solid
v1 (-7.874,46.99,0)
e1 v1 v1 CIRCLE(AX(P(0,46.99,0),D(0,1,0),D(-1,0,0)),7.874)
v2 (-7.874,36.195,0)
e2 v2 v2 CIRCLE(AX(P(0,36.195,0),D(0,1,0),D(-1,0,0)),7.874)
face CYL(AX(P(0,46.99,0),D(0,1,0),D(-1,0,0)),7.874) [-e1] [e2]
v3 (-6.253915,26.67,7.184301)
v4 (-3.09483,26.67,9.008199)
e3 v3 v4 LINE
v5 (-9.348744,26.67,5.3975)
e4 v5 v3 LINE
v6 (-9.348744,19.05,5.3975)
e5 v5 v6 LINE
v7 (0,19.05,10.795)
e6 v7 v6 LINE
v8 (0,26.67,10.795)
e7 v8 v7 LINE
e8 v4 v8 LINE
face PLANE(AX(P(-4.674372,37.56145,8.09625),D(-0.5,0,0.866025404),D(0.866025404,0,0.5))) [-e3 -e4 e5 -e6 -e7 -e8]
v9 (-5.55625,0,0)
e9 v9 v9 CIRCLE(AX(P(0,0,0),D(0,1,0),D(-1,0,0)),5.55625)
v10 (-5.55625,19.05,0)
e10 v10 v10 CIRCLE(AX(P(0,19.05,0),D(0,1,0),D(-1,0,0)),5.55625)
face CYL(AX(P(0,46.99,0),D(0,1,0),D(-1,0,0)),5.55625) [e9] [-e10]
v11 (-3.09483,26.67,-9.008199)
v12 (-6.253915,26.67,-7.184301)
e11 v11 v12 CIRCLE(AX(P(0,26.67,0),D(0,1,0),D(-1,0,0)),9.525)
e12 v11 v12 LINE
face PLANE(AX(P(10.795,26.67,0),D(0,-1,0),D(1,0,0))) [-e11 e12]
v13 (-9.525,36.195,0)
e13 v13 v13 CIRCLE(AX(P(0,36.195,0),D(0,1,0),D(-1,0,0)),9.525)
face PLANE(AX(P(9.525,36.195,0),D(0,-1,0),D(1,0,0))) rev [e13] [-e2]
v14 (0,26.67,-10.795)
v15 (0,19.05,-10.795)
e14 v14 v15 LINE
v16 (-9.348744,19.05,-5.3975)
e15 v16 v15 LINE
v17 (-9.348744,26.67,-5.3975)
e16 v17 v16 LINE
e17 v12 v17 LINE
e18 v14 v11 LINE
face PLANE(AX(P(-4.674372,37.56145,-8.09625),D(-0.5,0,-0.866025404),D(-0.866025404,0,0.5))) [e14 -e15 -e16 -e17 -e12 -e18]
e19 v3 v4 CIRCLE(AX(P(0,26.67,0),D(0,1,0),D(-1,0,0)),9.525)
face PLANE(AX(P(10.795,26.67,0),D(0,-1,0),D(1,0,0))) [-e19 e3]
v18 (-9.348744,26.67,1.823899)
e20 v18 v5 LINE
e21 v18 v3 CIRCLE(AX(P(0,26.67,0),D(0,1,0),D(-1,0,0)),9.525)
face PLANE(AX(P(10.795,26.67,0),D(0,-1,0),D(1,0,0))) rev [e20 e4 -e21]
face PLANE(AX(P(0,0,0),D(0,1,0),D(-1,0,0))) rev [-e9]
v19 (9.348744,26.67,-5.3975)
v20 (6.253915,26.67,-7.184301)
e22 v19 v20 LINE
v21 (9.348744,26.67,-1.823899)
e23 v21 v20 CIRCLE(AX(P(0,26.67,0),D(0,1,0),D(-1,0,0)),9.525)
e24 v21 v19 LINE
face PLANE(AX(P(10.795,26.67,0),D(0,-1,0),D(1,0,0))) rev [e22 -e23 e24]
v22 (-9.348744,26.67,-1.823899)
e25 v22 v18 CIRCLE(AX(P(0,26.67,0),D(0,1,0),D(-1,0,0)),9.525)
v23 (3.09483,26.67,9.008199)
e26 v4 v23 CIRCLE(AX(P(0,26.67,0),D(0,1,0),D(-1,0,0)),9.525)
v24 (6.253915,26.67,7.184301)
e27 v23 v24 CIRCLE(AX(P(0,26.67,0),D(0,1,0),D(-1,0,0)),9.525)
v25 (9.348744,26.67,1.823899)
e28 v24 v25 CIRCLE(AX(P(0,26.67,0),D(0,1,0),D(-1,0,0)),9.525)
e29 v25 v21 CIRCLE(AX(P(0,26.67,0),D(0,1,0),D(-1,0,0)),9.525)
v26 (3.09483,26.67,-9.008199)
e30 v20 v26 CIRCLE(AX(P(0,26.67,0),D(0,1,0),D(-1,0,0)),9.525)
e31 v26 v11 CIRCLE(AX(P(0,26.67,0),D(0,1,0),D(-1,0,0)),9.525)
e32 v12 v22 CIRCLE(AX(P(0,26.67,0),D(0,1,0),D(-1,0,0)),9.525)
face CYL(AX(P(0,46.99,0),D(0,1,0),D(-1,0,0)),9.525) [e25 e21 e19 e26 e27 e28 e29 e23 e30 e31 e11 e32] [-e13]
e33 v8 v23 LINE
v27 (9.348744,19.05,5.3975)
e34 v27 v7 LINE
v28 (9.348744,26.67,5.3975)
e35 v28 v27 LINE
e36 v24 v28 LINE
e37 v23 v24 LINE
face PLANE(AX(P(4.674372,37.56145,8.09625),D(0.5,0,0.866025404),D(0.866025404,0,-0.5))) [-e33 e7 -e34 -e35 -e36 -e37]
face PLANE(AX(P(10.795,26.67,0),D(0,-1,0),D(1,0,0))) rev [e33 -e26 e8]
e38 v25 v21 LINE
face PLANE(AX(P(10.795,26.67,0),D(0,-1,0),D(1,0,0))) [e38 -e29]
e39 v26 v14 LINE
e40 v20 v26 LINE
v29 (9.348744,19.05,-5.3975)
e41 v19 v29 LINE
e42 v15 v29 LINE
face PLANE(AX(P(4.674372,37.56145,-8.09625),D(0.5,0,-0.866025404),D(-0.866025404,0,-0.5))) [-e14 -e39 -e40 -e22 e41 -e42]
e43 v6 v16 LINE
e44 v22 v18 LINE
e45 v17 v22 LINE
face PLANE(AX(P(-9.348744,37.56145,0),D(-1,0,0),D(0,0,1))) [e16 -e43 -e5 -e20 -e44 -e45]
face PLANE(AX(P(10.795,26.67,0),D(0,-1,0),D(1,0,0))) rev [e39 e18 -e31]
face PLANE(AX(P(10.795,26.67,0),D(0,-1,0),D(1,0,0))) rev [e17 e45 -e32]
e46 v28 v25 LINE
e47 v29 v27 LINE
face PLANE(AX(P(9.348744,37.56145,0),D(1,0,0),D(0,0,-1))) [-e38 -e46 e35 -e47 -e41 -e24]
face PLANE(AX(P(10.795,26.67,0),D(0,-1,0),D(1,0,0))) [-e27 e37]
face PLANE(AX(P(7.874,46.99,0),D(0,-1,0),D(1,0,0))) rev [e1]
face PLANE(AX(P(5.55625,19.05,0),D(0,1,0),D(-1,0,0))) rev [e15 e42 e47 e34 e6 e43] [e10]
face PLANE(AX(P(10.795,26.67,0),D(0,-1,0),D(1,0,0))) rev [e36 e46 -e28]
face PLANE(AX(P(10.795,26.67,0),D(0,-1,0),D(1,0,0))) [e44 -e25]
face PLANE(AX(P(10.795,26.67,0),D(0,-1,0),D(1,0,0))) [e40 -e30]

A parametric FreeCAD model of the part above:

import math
import FreeCAD as App
import Part
import Sketcher
Q = App.Units.Quantity


def add_polygon(sketch, points):
    """Adds a closed chain of lines whose ends are joined by coincident constraints."""
    first, n = sketch.GeometryCount, len(points)
    for a, b in zip(points, points[1:] + points[:1]):
        sketch.addGeometry(Part.LineSegment(App.Vector(*a, 0), App.Vector(*b, 0)), False)
    for i in range(n):
        sketch.addConstraint(Sketcher.Constraint("Coincident", first + i, 2, first + (i + 1) % n, 1))

doc = App.newDocument("Part")
body = doc.addObject("PartDesign::Body", "Body")

# Sketch on XY plane
sketch1 = body.newObject("Sketcher::SketchObject", "Sketch")
sketch1.AttachmentSupport = (doc.getObject("XY_Plane"), [""])
sketch1.MapMode = "FlatFace"
add_polygon(sketch1, [(0, 0), (5.6, 0), (5.6, 19.1), (10.8, 19.1), (10.8, 26.7), (9.5, 26.7), (9.5, 36.2), (7.9, 36.2), (7.9, 47), (0, 47)])  # lines 0-9
sketch1.addConstraint([
    Sketcher.Constraint("Horizontal", 0),
    Sketcher.Constraint("Vertical", 1),
    Sketcher.Constraint("Horizontal", 2),
    Sketcher.Constraint("Vertical", 3),
    Sketcher.Constraint("Horizontal", 4),
    Sketcher.Constraint("Vertical", 5),
    Sketcher.Constraint("Horizontal", 6),
    Sketcher.Constraint("Vertical", 7),
    Sketcher.Constraint("Horizontal", 8),
    Sketcher.Constraint("Vertical", 9),
    Sketcher.Constraint("Coincident", 9, 2, -1, 1),
    Sketcher.Constraint("DistanceY", 3, 1, 3, 2, Q("0.3 in")),
    Sketcher.Constraint("DistanceX", 4, 2, 4, 1, Q("0.05 in")),
    Sketcher.Constraint("DistanceX", 8, 2, 8, 1, Q("0.31 in")),
    Sketcher.Constraint("DistanceY", 1, 1, 1, 2, Q("0.75 in")),
    Sketcher.Constraint("DistanceY", 9, 2, 9, 1, Q("1.85 in")),
    Sketcher.Constraint("DistanceX", 0, 1, 0, 2, Q("0.21875 in")),
    Sketcher.Constraint("DistanceX", 6, 2, 6, 1, Q("0.065 in")),
    Sketcher.Constraint("DistanceY", 5, 1, 5, 2, Q("0.375 in")),
])
revolution = body.newObject("PartDesign::Revolution", "Revolution")
revolution.Profile = sketch1
revolution.ReferenceAxis = (sketch1, ["V_Axis"])
revolution.Angle = 360

# Sketch on XZ plane
sketch2 = body.newObject("Sketcher::SketchObject", "Sketch001")
sketch2.AttachmentSupport = (doc.getObject("XZ_Plane"), [""])
sketch2.MapMode = "FlatFace"
sketch2.AttachmentOffset = App.Placement(App.Vector(0, 0, -0.75 * 25.4), App.Rotation())
sketch2.addGeometry([
    Part.LineSegment(App.Vector(-9, 5, 0), App.Vector(0, 11, 0)),  # 0
    Part.ArcOfCircle(Part.Circle(App.Vector(0, 0, 0), App.Vector(0, 0, 1), 11), math.radians(90), math.radians(150)),  # 1
    Part.ArcOfCircle(Part.Circle(App.Vector(0, 0, 0), App.Vector(0, 0, 1), 11), math.radians(30), math.radians(90)),  # 2
    Part.LineSegment(App.Vector(0, 11, 0), App.Vector(9, 5, 0)),  # 3
    Part.ArcOfCircle(Part.Circle(App.Vector(0, 0, 0), App.Vector(0, 0, 1), 11), math.radians(0), math.radians(30)),  # 4
    Part.LineSegment(App.Vector(9, 5, 0), App.Vector(9, -5, 0)),  # 5
    Part.ArcOfCircle(Part.Circle(App.Vector(0, 0, 0), App.Vector(0, 0, 1), 11), math.radians(-30), math.radians(0)),  # 6
    Part.ArcOfCircle(Part.Circle(App.Vector(0, 0, 0), App.Vector(0, 0, 1), 11), math.radians(-90), math.radians(-30)),  # 7
    Part.LineSegment(App.Vector(9, -5, 0), App.Vector(0, -11, 0)),  # 8
    Part.LineSegment(App.Vector(0, -11, 0), App.Vector(-9, -5, 0)),  # 9
    Part.ArcOfCircle(Part.Circle(App.Vector(0, 0, 0), App.Vector(0, 0, 1), 11), math.radians(-150), math.radians(-90)),  # 10
    Part.LineSegment(App.Vector(-9, -5, 0), App.Vector(-9, 5, 0)),  # 11
    Part.ArcOfCircle(Part.Circle(App.Vector(0, 0, 0), App.Vector(0, 0, 1), 11), math.radians(150), math.radians(210)),  # 12
], False)
sketch2.addConstraint([
    Sketcher.Constraint("Coincident", 0, 1, 1, 2),
    Sketcher.Constraint("Coincident", 1, 1, 0, 2),
    Sketcher.Constraint("Coincident", 2, 1, 3, 2),
    Sketcher.Constraint("Coincident", 3, 1, 2, 2),
    Sketcher.Constraint("Coincident", 4, 2, 5, 1),
    Sketcher.Constraint("Coincident", 5, 2, 6, 1),
    Sketcher.Constraint("Tangent", 6, 2, 4, 1),
    Sketcher.Constraint("Coincident", 7, 1, 8, 2),
    Sketcher.Constraint("Coincident", 8, 1, 7, 2),
    Sketcher.Constraint("Coincident", 9, 1, 10, 2),
    Sketcher.Constraint("Coincident", 10, 1, 9, 2),
    Sketcher.Constraint("Coincident", 11, 1, 12, 2),
    Sketcher.Constraint("Coincident", 12, 1, 11, 2),
    Sketcher.Constraint("Vertical", 5),
    Sketcher.Constraint("Vertical", 11),
    Sketcher.Constraint("Coincident", 1, 3, -1, 1),
    Sketcher.Constraint("Coincident", 2, 3, -1, 1),
    Sketcher.Constraint("Coincident", 4, 3, -1, 1),
    Sketcher.Constraint("Coincident", 7, 3, -1, 1),
    Sketcher.Constraint("Coincident", 10, 3, -1, 1),
    Sketcher.Constraint("Coincident", 12, 3, -1, 1),
    Sketcher.Constraint("Coincident", 3, 1, 1, 1),
    Sketcher.Constraint("Coincident", 4, 2, 2, 1),
    Sketcher.Constraint("Coincident", 8, 1, 5, 2),
    Sketcher.Constraint("Coincident", 9, 1, 7, 1),
    Sketcher.Constraint("Coincident", 11, 1, 10, 1),
    Sketcher.Constraint("Coincident", 12, 1, 0, 1),
    Sketcher.Constraint("PointOnObject", 1, 1, -2),
    Sketcher.Constraint("PointOnObject", 6, 2, -1),
    Sketcher.Constraint("PointOnObject", 7, 1, -2),
    Sketcher.Constraint("Parallel", 0, 8),
    Sketcher.Constraint("Angle", 0, Q("30 deg")),
    Sketcher.Constraint("Radius", 1, Q("0.425 in")),
])
pocket1 = body.newObject("PartDesign::Pocket", "Pocket")
pocket1.Profile = sketch2
pocket1.Length = Q("0.3 in")

doc.recompute()
